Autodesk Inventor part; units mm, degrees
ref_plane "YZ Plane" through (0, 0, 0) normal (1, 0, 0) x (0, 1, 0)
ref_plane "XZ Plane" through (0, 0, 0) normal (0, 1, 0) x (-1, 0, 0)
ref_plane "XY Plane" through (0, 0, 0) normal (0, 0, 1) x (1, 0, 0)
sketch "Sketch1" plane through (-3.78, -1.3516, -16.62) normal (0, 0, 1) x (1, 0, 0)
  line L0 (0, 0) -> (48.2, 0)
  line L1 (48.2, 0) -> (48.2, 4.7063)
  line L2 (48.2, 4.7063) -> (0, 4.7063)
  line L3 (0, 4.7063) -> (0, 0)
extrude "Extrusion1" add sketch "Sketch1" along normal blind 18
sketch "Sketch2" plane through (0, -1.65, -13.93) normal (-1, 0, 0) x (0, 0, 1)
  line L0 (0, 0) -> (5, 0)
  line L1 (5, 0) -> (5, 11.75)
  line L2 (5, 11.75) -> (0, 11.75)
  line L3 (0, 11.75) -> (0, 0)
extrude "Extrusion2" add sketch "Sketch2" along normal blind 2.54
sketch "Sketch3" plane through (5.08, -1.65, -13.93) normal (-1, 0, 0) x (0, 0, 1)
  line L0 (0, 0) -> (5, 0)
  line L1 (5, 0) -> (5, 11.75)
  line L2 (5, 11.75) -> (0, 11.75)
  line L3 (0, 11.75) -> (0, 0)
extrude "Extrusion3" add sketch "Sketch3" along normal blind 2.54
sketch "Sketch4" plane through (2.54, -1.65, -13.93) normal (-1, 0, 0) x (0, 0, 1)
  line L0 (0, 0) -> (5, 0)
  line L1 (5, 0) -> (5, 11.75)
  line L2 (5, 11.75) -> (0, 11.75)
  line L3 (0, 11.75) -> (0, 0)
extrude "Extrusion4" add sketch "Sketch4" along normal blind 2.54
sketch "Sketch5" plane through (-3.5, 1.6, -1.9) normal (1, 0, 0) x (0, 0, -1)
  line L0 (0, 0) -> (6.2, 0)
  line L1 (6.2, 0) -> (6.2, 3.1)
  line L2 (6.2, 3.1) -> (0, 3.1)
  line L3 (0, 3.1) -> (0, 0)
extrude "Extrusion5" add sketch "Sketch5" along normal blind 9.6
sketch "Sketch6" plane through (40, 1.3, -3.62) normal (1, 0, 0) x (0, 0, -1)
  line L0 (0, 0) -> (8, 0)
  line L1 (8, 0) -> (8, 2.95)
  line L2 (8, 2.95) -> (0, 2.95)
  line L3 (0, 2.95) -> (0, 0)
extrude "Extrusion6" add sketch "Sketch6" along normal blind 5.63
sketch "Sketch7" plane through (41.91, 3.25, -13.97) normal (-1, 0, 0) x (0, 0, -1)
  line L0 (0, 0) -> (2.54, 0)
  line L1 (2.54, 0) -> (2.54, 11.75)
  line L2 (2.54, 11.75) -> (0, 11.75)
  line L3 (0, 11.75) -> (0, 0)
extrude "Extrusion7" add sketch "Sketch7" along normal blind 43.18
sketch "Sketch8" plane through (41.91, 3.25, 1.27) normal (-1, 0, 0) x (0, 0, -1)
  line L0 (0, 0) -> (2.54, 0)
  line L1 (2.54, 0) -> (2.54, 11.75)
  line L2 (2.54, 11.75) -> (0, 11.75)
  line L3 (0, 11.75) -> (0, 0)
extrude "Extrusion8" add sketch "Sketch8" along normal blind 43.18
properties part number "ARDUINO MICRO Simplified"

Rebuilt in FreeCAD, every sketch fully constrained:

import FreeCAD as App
import Part
import Sketcher
from FreeCAD import Vector
Q = App.Units.Quantity

doc = App.newDocument("Part")
params = doc.addObject("Spreadsheet::Sheet", "Params")
for row, (alias, value) in enumerate([
    ("sketch1_width", "48.2 mm"),
    ("pad1_length", "18 mm"),
    ("sketch2_height", "5 mm"),
    ("sketch2_width", "11.75 mm"),
    ("pad2_length", "2.54 mm"),
    ("sketch3_height", "5 mm"),
    ("sketch3_width", "11.75 mm"),
    ("pad3_length", "2.54 mm"),
    ("sketch4_height", "5 mm"),
    ("sketch4_width", "11.75 mm"),
    ("pad4_length", "2.54 mm"),
    ("sketch5_width", "3.1 mm"),
    ("sketch5_height", "6.2 mm"),
    ("pad5_length", "9.6 mm"),
    ("sketch6_height", "8 mm"),
    ("sketch6_width", "2.95 mm"),
    ("pad6_length", "5.63 mm"),
    ("sketch7_width", "11.75 mm"),
    ("sketch7_height", "2.54 mm"),
    ("pad7_length", "43.18 mm"),
    ("sketch8_width", "11.75 mm"),
    ("sketch8_height", "2.54 mm"),
    ("pad8_length", "43.18 mm"),
], start=1):
    params.set(f"A{row}", alias)
    params.set(f"B{row}", "=" + value)
    params.setAlias(f"B{row}", alias)

body = doc.addObject("PartDesign::Body", "Body")

sketch1 = body.newObject("Sketcher::SketchObject", "Sketch")
sketch1.AttachmentSupport = (doc.getObject("XY_Plane"), [""])
sketch1.MapMode = "FlatFace"
sketch1.AttachmentOffset = App.Placement(Vector(0, 0, -16.62), App.Rotation())
sketch1.addGeometry([
    Part.LineSegment(Vector(-3.8, 3.4, 0), Vector(-3.8, -1.4, 0)),
    Part.LineSegment(Vector(-3.8, -1.4, 0), Vector(44.4, -1.4, 0)),
    Part.LineSegment(Vector(44.4, -1.4, 0), Vector(44.4, 3.4, 0)),
    Part.LineSegment(Vector(44.4, 3.4, 0), Vector(-3.8, 3.4, 0)),
], False)
sketch1.addConstraint([
    Sketcher.Constraint("Coincident", 0, 2, 1, 1),
    Sketcher.Constraint("Coincident", 1, 2, 2, 1),
    Sketcher.Constraint("Coincident", 2, 2, 3, 1),
    Sketcher.Constraint("Coincident", 3, 2, 0, 1),
    Sketcher.Constraint("Vertical", 0),
    Sketcher.Constraint("Horizontal", 1),
    Sketcher.Constraint("Vertical", 2),
    Sketcher.Constraint("Horizontal", 3),
    Sketcher.Constraint("DistanceX", 1, 1, 1, 2, Q("48.2 mm")),
    Sketcher.Constraint("DistanceX", 0, 2, -1, 1, Q("3.78 mm")),
    Sketcher.Constraint("DistanceY", 0, 2, 0, 1, Q("4.7063 mm")),
    Sketcher.Constraint("DistanceY", 0, 2, -1, 1, Q("1.3516 mm")),
])
sketch1.setExpression("Constraints[8]", "Params.sketch1_width")
pad1 = body.newObject("PartDesign::Pad", "Pad")
pad1.Profile = sketch1
pad1.setExpression("Length", "Params.pad1_length")

sketch2 = body.newObject("Sketcher::SketchObject", "Sketch001")
sketch2.AttachmentSupport = (doc.getObject("YZ_Plane"), [""])
sketch2.MapMode = "FlatFace"
sketch2.addGeometry([
    Part.LineSegment(Vector(10, -14, 0), Vector(-2, -14, 0)),
    Part.LineSegment(Vector(-2, -14, 0), Vector(-2, -9, 0)),
    Part.LineSegment(Vector(-2, -9, 0), Vector(10, -9, 0)),
    Part.LineSegment(Vector(10, -9, 0), Vector(10, -14, 0)),
], False)
sketch2.addConstraint([
    Sketcher.Constraint("Coincident", 0, 2, 1, 1),
    Sketcher.Constraint("Coincident", 1, 2, 2, 1),
    Sketcher.Constraint("Coincident", 2, 2, 3, 1),
    Sketcher.Constraint("Coincident", 3, 2, 0, 1),
    Sketcher.Constraint("Horizontal", 0),
    Sketcher.Constraint("Vertical", 1),
    Sketcher.Constraint("Horizontal", 2),
    Sketcher.Constraint("Vertical", 3),
    Sketcher.Constraint("DistanceY", 1, 1, 1, 2, Q("5 mm")),
    Sketcher.Constraint("DistanceX", 0, 2, 0, 1, Q("11.75 mm")),
    Sketcher.Constraint("DistanceX", -1, 1, 2, 2, Q("10.1 mm")),
    Sketcher.Constraint("DistanceY", 0, 2, -1, 1, Q("13.93 mm")),
])
sketch2.setExpression("Constraints[8]", "Params.sketch2_height")
sketch2.setExpression("Constraints[9]", "Params.sketch2_width")
pad2 = body.newObject("PartDesign::Pad", "Pad001")
pad2.Profile = sketch2
pad2.setExpression("Length", "Params.pad2_length")
pad2.Reversed = True

sketch3 = body.newObject("Sketcher::SketchObject", "Sketch002")
sketch3.AttachmentSupport = (doc.getObject("YZ_Plane"), [""])
sketch3.MapMode = "FlatFace"
sketch3.AttachmentOffset = App.Placement(Vector(0, 0, 5.08), App.Rotation())
sketch3.addGeometry([
    Part.LineSegment(Vector(10, -14, 0), Vector(-2, -14, 0)),
    Part.LineSegment(Vector(-2, -14, 0), Vector(-2, -9, 0)),
    Part.LineSegment(Vector(-2, -9, 0), Vector(10, -9, 0)),
    Part.LineSegment(Vector(10, -9, 0), Vector(10, -14, 0)),
], False)
sketch3.addConstraint([
    Sketcher.Constraint("Coincident", 0, 2, 1, 1),
    Sketcher.Constraint("Coincident", 1, 2, 2, 1),
    Sketcher.Constraint("Coincident", 2, 2, 3, 1),
    Sketcher.Constraint("Coincident", 3, 2, 0, 1),
    Sketcher.Constraint("Horizontal", 0),
    Sketcher.Constraint("Vertical", 1),
    Sketcher.Constraint("Horizontal", 2),
    Sketcher.Constraint("Vertical", 3),
    Sketcher.Constraint("DistanceY", 1, 1, 1, 2, Q("5 mm")),
    Sketcher.Constraint("DistanceX", 0, 2, 0, 1, Q("11.75 mm")),
    Sketcher.Constraint("DistanceX", -1, 1, 2, 2, Q("10.1 mm")),
    Sketcher.Constraint("DistanceY", 0, 2, -1, 1, Q("13.93 mm")),
])
sketch3.setExpression("Constraints[8]", "Params.sketch3_height")
sketch3.setExpression("Constraints[9]", "Params.sketch3_width")
pad3 = body.newObject("PartDesign::Pad", "Pad002")
pad3.Profile = sketch3
pad3.setExpression("Length", "Params.pad3_length")
pad3.Reversed = True

sketch4 = body.newObject("Sketcher::SketchObject", "Sketch003")
sketch4.AttachmentSupport = (doc.getObject("YZ_Plane"), [""])
sketch4.MapMode = "FlatFace"
sketch4.AttachmentOffset = App.Placement(Vector(0, 0, 2.54), App.Rotation())
sketch4.addGeometry([
    Part.LineSegment(Vector(10, -14, 0), Vector(-2, -14, 0)),
    Part.LineSegment(Vector(-2, -14, 0), Vector(-2, -9, 0)),
    Part.LineSegment(Vector(-2, -9, 0), Vector(10, -9, 0)),
    Part.LineSegment(Vector(10, -9, 0), Vector(10, -14, 0)),
], False)
sketch4.addConstraint([
    Sketcher.Constraint("Coincident", 0, 2, 1, 1),
    Sketcher.Constraint("Coincident", 1, 2, 2, 1),
    Sketcher.Constraint("Coincident", 2, 2, 3, 1),
    Sketcher.Constraint("Coincident", 3, 2, 0, 1),
    Sketcher.Constraint("Horizontal", 0),
    Sketcher.Constraint("Vertical", 1),
    Sketcher.Constraint("Horizontal", 2),
    Sketcher.Constraint("Vertical", 3),
    Sketcher.Constraint("DistanceY", 1, 1, 1, 2, Q("5 mm")),
    Sketcher.Constraint("DistanceX", 0, 2, 0, 1, Q("11.75 mm")),
    Sketcher.Constraint("DistanceX", -1, 1, 2, 2, Q("10.1 mm")),
    Sketcher.Constraint("DistanceY", 0, 2, -1, 1, Q("13.93 mm")),
])
sketch4.setExpression("Constraints[8]", "Params.sketch4_height")
sketch4.setExpression("Constraints[9]", "Params.sketch4_width")
pad4 = body.newObject("PartDesign::Pad", "Pad003")
pad4.Profile = sketch4
pad4.setExpression("Length", "Params.pad4_length")
pad4.Reversed = True

sketch5 = body.newObject("Sketcher::SketchObject", "Sketch004")
sketch5.AttachmentSupport = (doc.getObject("YZ_Plane"), [""])
sketch5.MapMode = "FlatFace"
sketch5.AttachmentOffset = App.Placement(Vector(0, 0, -3.5), App.Rotation())
sketch5.addGeometry([
    Part.LineSegment(Vector(4.7, -1.9, 0), Vector(1.6, -1.9, 0)),
    Part.LineSegment(Vector(1.6, -1.9, 0), Vector(1.6, -8.1, 0)),
    Part.LineSegment(Vector(1.6, -8.1, 0), Vector(4.7, -8.1, 0)),
    Part.LineSegment(Vector(4.7, -8.1, 0), Vector(4.7, -1.9, 0)),
], False)
sketch5.addConstraint([
    Sketcher.Constraint("Coincident", 0, 2, 1, 1),
    Sketcher.Constraint("Coincident", 1, 2, 2, 1),
    Sketcher.Constraint("Coincident", 2, 2, 3, 1),
    Sketcher.Constraint("Coincident", 3, 2, 0, 1),
    Sketcher.Constraint("Horizontal", 0),
    Sketcher.Constraint("Vertical", 1),
    Sketcher.Constraint("Horizontal", 2),
    Sketcher.Constraint("Vertical", 3),
    Sketcher.Constraint("DistanceX", 0, 2, 0, 1, Q("3.1 mm")),
    Sketcher.Constraint("DistanceY", 1, 2, 1, 1, Q("6.2 mm")),
    Sketcher.Constraint("DistanceX", -1, 1, 0, 2, Q("1.6 mm")),
    Sketcher.Constraint("DistanceY", 0, 2, -1, 1, Q("1.9 mm")),
])
sketch5.setExpression("Constraints[8]", "Params.sketch5_width")
sketch5.setExpression("Constraints[9]", "Params.sketch5_height")
pad5 = body.newObject("PartDesign::Pad", "Pad004")
pad5.Profile = sketch5
pad5.setExpression("Length", "Params.pad5_length")

sketch6 = body.newObject("Sketcher::SketchObject", "Sketch005")
sketch6.AttachmentSupport = (doc.getObject("YZ_Plane"), [""])
sketch6.MapMode = "FlatFace"
sketch6.AttachmentOffset = App.Placement(Vector(0, 0, 40), App.Rotation())
sketch6.addGeometry([
    Part.LineSegment(Vector(4.2, -3.6, 0), Vector(1.3, -3.6, 0)),
    Part.LineSegment(Vector(1.3, -3.6, 0), Vector(1.3, -11.6, 0)),
    Part.LineSegment(Vector(1.3, -11.6, 0), Vector(4.2, -11.6, 0)),
    Part.LineSegment(Vector(4.2, -11.6, 0), Vector(4.2, -3.6, 0)),
], False)
sketch6.addConstraint([
    Sketcher.Constraint("Coincident", 0, 2, 1, 1),
    Sketcher.Constraint("Coincident", 1, 2, 2, 1),
    Sketcher.Constraint("Coincident", 2, 2, 3, 1),
    Sketcher.Constraint("Coincident", 3, 2, 0, 1),
    Sketcher.Constraint("Horizontal", 0),
    Sketcher.Constraint("Vertical", 1),
    Sketcher.Constraint("Horizontal", 2),
    Sketcher.Constraint("Vertical", 3),
    Sketcher.Constraint("DistanceY", 1, 2, 1, 1, Q("8 mm")),
    Sketcher.Constraint("DistanceX", 0, 2, 0, 1, Q("2.95 mm")),
    Sketcher.Constraint("DistanceX", -1, 1, 0, 2, Q("1.3 mm")),
    Sketcher.Constraint("DistanceY", 0, 2, -1, 1, Q("3.62 mm")),
])
sketch6.setExpression("Constraints[8]", "Params.sketch6_height")
sketch6.setExpression("Constraints[9]", "Params.sketch6_width")
pad6 = body.newObject("PartDesign::Pad", "Pad005")
pad6.Profile = sketch6
pad6.setExpression("Length", "Params.pad6_length")

sketch7 = body.newObject("Sketcher::SketchObject", "Sketch006")
sketch7.AttachmentSupport = (doc.getObject("YZ_Plane"), [""])
sketch7.MapMode = "FlatFace"
sketch7.AttachmentOffset = App.Placement(Vector(0, 0, 41.91), App.Rotation())
sketch7.addGeometry([
    Part.LineSegment(Vector(-8.5, -14, 0), Vector(3.2, -14, 0)),
    Part.LineSegment(Vector(3.2, -14, 0), Vector(3.2, -16.5, 0)),
    Part.LineSegment(Vector(3.2, -16.5, 0), Vector(-8.5, -16.5, 0)),
    Part.LineSegment(Vector(-8.5, -16.5, 0), Vector(-8.5, -14, 0)),
], False)
sketch7.addConstraint([
    Sketcher.Constraint("Coincident", 0, 2, 1, 1),
    Sketcher.Constraint("Coincident", 1, 2, 2, 1),
    Sketcher.Constraint("Coincident", 2, 2, 3, 1),
    Sketcher.Constraint("Coincident", 3, 2, 0, 1),
    Sketcher.Constraint("Horizontal", 0),
    Sketcher.Constraint("Vertical", 1),
    Sketcher.Constraint("Horizontal", 2),
    Sketcher.Constraint("Vertical", 3),
    Sketcher.Constraint("DistanceX", 0, 1, 0, 2, Q("11.75 mm")),
    Sketcher.Constraint("DistanceY", 1, 2, 1, 1, Q("2.54 mm")),
    Sketcher.Constraint("DistanceX", 2, 2, -1, 1, Q("8.5 mm")),
    Sketcher.Constraint("DistanceY", 0, 2, -1, 1, Q("13.97 mm")),
])
sketch7.setExpression("Constraints[8]", "Params.sketch7_width")
sketch7.setExpression("Constraints[9]", "Params.sketch7_height")
pad7 = body.newObject("PartDesign::Pad", "Pad006")
pad7.Profile = sketch7
pad7.setExpression("Length", "Params.pad7_length")
pad7.Reversed = True

sketch8 = body.newObject("Sketcher::SketchObject", "Sketch007")
sketch8.AttachmentSupport = (doc.getObject("YZ_Plane"), [""])
sketch8.MapMode = "FlatFace"
sketch8.AttachmentOffset = App.Placement(Vector(0, 0, 41.91), App.Rotation())
sketch8.addGeometry([
    Part.LineSegment(Vector(-8.5, 1.3, 0), Vector(3.2, 1.3, 0)),
    Part.LineSegment(Vector(3.2, 1.3, 0), Vector(3.2, -1.3, 0)),
    Part.LineSegment(Vector(3.2, -1.3, 0), Vector(-8.5, -1.3, 0)),
    Part.LineSegment(Vector(-8.5, -1.3, 0), Vector(-8.5, 1.3, 0)),
], False)
sketch8.addConstraint([
    Sketcher.Constraint("Coincident", 0, 2, 1, 1),
    Sketcher.Constraint("Coincident", 1, 2, 2, 1),
    Sketcher.Constraint("Coincident", 2, 2, 3, 1),
    Sketcher.Constraint("Coincident", 3, 2, 0, 1),
    Sketcher.Constraint("Horizontal", 0),
    Sketcher.Constraint("Vertical", 1),
    Sketcher.Constraint("Horizontal", 2),
    Sketcher.Constraint("Vertical", 3),
    Sketcher.Constraint("DistanceX", 0, 1, 0, 2, Q("11.75 mm")),
    Sketcher.Constraint("DistanceY", 1, 2, 1, 1, Q("2.54 mm")),
    Sketcher.Constraint("DistanceX", 2, 2, -1, 1, Q("8.5 mm")),
    Sketcher.Constraint("DistanceY", -1, 1, 0, 2, Q("1.27 mm")),
])
sketch8.setExpression("Constraints[8]", "Params.sketch8_width")
sketch8.setExpression("Constraints[9]", "Params.sketch8_height")
pad8 = body.newObject("PartDesign::Pad", "Pad007")
pad8.Profile = sketch8
pad8.setExpression("Length", "Params.pad8_length")
pad8.Reversed = True

doc.recompute()
